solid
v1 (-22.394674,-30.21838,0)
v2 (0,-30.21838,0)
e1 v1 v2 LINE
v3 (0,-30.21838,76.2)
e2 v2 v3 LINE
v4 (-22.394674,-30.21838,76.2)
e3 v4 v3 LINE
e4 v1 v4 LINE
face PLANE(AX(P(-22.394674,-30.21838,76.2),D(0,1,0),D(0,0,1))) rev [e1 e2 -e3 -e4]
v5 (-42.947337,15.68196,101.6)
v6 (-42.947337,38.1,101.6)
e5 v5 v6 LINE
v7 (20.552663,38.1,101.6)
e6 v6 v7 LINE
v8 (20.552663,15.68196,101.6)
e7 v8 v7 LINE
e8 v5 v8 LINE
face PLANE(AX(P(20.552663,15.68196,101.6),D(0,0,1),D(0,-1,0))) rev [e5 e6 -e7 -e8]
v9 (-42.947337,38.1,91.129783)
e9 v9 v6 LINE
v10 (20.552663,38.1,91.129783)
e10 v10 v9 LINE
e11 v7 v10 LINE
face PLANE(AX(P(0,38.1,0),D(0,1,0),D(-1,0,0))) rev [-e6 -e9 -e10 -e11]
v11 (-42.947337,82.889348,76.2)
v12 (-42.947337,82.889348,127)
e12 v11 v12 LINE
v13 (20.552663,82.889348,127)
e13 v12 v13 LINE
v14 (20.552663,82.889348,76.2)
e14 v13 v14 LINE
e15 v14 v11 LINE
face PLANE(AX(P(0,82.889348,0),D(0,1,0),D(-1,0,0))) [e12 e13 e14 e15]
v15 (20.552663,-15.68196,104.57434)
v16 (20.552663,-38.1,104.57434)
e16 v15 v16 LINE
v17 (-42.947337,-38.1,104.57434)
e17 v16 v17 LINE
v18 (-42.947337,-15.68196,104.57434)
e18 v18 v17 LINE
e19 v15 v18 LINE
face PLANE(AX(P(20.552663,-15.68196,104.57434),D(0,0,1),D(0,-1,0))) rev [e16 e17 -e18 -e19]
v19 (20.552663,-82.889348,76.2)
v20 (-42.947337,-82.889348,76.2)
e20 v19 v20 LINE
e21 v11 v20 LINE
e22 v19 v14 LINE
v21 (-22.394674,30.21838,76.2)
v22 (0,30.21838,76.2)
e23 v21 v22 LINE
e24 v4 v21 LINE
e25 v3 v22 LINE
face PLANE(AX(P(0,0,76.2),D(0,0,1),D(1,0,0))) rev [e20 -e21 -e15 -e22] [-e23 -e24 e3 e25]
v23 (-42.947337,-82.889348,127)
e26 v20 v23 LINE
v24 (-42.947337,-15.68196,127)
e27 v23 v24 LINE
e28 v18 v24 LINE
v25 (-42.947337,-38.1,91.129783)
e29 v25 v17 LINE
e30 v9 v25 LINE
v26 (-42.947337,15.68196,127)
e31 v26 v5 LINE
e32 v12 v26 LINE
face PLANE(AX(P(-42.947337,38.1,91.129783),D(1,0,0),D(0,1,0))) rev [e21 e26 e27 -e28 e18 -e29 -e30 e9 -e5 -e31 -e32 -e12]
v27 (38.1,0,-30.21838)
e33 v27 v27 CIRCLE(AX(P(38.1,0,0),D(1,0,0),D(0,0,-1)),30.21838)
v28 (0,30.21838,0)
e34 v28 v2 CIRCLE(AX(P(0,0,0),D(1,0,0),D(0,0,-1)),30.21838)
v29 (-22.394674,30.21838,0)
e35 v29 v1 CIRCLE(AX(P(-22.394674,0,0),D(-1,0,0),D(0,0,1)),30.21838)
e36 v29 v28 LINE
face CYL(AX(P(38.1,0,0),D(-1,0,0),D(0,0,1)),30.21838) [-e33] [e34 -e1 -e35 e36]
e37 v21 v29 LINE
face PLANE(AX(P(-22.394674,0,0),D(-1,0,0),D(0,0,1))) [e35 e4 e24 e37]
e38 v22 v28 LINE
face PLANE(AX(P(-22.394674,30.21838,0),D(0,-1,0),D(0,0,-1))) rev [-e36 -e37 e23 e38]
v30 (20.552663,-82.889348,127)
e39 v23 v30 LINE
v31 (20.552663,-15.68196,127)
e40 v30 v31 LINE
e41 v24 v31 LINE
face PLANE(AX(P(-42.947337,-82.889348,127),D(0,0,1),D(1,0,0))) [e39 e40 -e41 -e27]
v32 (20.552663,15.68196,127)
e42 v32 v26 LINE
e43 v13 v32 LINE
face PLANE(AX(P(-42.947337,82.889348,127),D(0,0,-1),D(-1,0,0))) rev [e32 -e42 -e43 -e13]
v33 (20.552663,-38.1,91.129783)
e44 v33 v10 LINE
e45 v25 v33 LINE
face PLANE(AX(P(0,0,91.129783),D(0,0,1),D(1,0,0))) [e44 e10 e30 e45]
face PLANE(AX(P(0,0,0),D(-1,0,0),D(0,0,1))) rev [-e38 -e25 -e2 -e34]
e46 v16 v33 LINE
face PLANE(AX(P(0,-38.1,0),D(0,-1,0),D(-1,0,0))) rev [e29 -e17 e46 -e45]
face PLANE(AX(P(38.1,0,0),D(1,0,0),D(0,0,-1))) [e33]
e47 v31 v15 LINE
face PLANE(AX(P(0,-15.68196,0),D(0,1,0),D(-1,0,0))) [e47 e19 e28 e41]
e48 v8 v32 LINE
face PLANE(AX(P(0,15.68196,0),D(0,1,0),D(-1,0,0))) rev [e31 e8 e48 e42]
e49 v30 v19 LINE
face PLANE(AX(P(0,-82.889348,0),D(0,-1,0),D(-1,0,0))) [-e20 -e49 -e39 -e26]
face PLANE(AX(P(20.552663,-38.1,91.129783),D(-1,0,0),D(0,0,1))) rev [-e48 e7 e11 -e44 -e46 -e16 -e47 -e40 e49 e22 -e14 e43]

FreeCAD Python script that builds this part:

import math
import FreeCAD as App
import Part
import Sketcher

V = App.Vector
Q = App.Units.Quantity

doc = App.newDocument("Part")
params = doc.addObject("Spreadsheet::Sheet", "Params")
for row, (alias, value) in enumerate([
    ("pad1_length", "1.5 in"),
    ("sketch2_height", "3 in"),
    ("pad2_length", "22.394674 mm"),
    ("sketch3_height", "3 in"),
    ("sketch3_width", "2.5 in"),
    ("pad3_length", "14.929783 mm"),
    ("sketch4_height", "2 in"),
    ("sketch4_width", "2.5 in"),
    ("pad4_length", "44.789348 mm"),
    ("sketch5_height", "1 in"),
    ("sketch5_width", "2.5 in"),
    ("pad5_length", "0.8826 in"),
    ("sketch6_width", "2.5 in"),
    ("pad6_length", "0.8826 in"),
], start=1):
    params.set(f"A{row}", alias)
    params.set(f"B{row}", "=" + value)
    params.setAlias(f"B{row}", alias)

body = doc.addObject("PartDesign::Body", "Body")

# Sketch on YZ plane
sketch1 = body.newObject("Sketcher::SketchObject", "Sketch")
sketch1.AttachmentSupport = (doc.getObject("YZ_Plane"), [""])
sketch1.MapMode = "FlatFace"
sketch1.addGeometry(Part.Circle(V(0, 0, 0), V(0, 0, 1), 30.21838), False)
sketch1.addConstraint([
    Sketcher.Constraint("Coincident", 0, 3, -1, 1),
    Sketcher.Constraint("Diameter", 0, Q("2.3794 in")),
])
pad1 = body.newObject("PartDesign::Pad", "Pad")
pad1.Profile = sketch1
pad1.setExpression("Length", "Params.pad1_length")

# Sketch on YZ plane
sketch2 = body.newObject("Sketcher::SketchObject", "Sketch001")
sketch2.AttachmentSupport = (doc.getObject("YZ_Plane"), [""])
sketch2.MapMode = "FlatFace"
sketch2.AttachmentOffset = App.Placement(V(0, 0, -22.394674), App.Rotation())
sketch2.addGeometry([
    Part.LineSegment(V(30.21838, 76.2, 0), V(30.21838, 0, 0)),
    Part.ArcOfCircle(Part.Circle(V(0, 0, 0), V(0, 0, 1), 30.21838), math.radians(180), math.radians(360)),
    Part.LineSegment(V(-30.21838, 0, 0), V(-30.21838, 76.2, 0)),
    Part.LineSegment(V(-30.21838, 76.2, 0), V(30.21838, 76.2, 0)),
], False)
sketch2.addConstraint([
    Sketcher.Constraint("Tangent", 0, 2, 1, 2),
    Sketcher.Constraint("Tangent", 1, 1, 2, 1),
    Sketcher.Constraint("Coincident", 2, 2, 3, 1),
    Sketcher.Constraint("Coincident", 3, 2, 0, 1),
    Sketcher.Constraint("Vertical", 0),
    Sketcher.Constraint("Vertical", 2),
    Sketcher.Constraint("Horizontal", 3),
    Sketcher.Constraint("Coincident", 1, 3, -1, 1),
    Sketcher.Constraint("DistanceY", 0, 2, 0, 1, Q("3 in")),
    Sketcher.Constraint("Radius", 1, Q("1.1897 in")),
])
sketch2.setExpression("Constraints[8]", "Params.sketch2_height")
pad2 = body.newObject("PartDesign::Pad", "Pad001")
pad2.Profile = sketch2
pad2.setExpression("Length", "Params.pad2_length")

# Sketch on XY plane
sketch3 = body.newObject("Sketcher::SketchObject", "Sketch002")
sketch3.AttachmentSupport = (doc.getObject("XY_Plane"), [""])
sketch3.MapMode = "FlatFace"
sketch3.AttachmentOffset = App.Placement(V(0, 0, 3 * 25.4), App.Rotation())
sketch3.addGeometry([
    Part.LineSegment(V(-42.947337, 38.1, 0), V(-42.947337, -38.1, 0)),
    Part.LineSegment(V(-42.947337, -38.1, 0), V(20.552663, -38.1, 0)),
    Part.LineSegment(V(20.552663, -38.1, 0), V(20.552663, 38.1, 0)),
    Part.LineSegment(V(20.552663, 38.1, 0), V(-42.947337, 38.1, 0)),
], False)
sketch3.addConstraint([
    Sketcher.Constraint("Coincident", 0, 2, 1, 1),
    Sketcher.Constraint("Coincident", 1, 2, 2, 1),
    Sketcher.Constraint("Coincident", 2, 2, 3, 1),
    Sketcher.Constraint("Coincident", 3, 2, 0, 1),
    Sketcher.Constraint("Vertical", 0),
    Sketcher.Constraint("Horizontal", 1),
    Sketcher.Constraint("Vertical", 2),
    Sketcher.Constraint("Horizontal", 3),
    Sketcher.Constraint("DistanceY", 0, 2, 0, 1, Q("3 in")),
    Sketcher.Constraint("DistanceX", 1, 1, 1, 2, Q("2.5 in")),
    Sketcher.Constraint("DistanceY", 0, 2, -1, 1, Q("1.5 in")),
    Sketcher.Constraint("DistanceX", 0, 2, -1, 1, Q("42.947337 mm")),
])
sketch3.setExpression("Constraints[8]", "Params.sketch3_height")
sketch3.setExpression("Constraints[9]", "Params.sketch3_width")
pad3 = body.newObject("PartDesign::Pad", "Pad002")
pad3.Profile = sketch3
pad3.setExpression("Length", "Params.pad3_length")

# Sketch on XZ plane
sketch4 = body.newObject("Sketcher::SketchObject", "Sketch003")
sketch4.AttachmentSupport = (doc.getObject("XZ_Plane"), [""])
sketch4.MapMode = "FlatFace"
sketch4.AttachmentOffset = App.Placement(V(0, 0, -1.5 * 25.4), App.Rotation())
sketch4.addGeometry([
    Part.LineSegment(V(20.552663, 127, 0), V(20.552663, 76.2, 0)),
    Part.LineSegment(V(20.552663, 76.2, 0), V(-42.947337, 76.2, 0)),
    Part.LineSegment(V(-42.947337, 76.2, 0), V(-42.947337, 127, 0)),
    Part.LineSegment(V(-42.947337, 127, 0), V(20.552663, 127, 0)),
], False)
sketch4.addConstraint([
    Sketcher.Constraint("Coincident", 0, 2, 1, 1),
    Sketcher.Constraint("Coincident", 1, 2, 2, 1),
    Sketcher.Constraint("Coincident", 2, 2, 3, 1),
    Sketcher.Constraint("Coincident", 3, 2, 0, 1),
    Sketcher.Constraint("Vertical", 0),
    Sketcher.Constraint("Horizontal", 1),
    Sketcher.Constraint("Vertical", 2),
    Sketcher.Constraint("Horizontal", 3),
    Sketcher.Constraint("DistanceY", 0, 2, 0, 1, Q("2 in")),
    Sketcher.Constraint("DistanceX", 1, 2, 1, 1, Q("2.5 in")),
    Sketcher.Constraint("DistanceY", -1, 1, 0, 2, Q("3 in")),
    Sketcher.Constraint("DistanceX", -1, 1, 0, 2, Q("20.552663 mm")),
])
sketch4.setExpression("Constraints[8]", "Params.sketch4_height")
sketch4.setExpression("Constraints[9]", "Params.sketch4_width")
pad4 = body.newObject("PartDesign::Pad", "Pad003")
pad4.Profile = sketch4
pad4.setExpression("Length", "Params.pad4_length")
pad4.Reversed = True
doc.recompute()

mirrored = body.newObject("PartDesign::Mirrored", "Mirrored")
mirrored.Originals = [pad4]
mirrored.MirrorPlane = (doc.getObject("XZ_Plane"), [""])
body.Tip = mirrored

# Sketch on XZ plane
sketch5 = body.newObject("Sketcher::SketchObject", "Sketch004")
sketch5.AttachmentSupport = (doc.getObject("XZ_Plane"), [""])
sketch5.MapMode = "FlatFace"
sketch5.AttachmentOffset = App.Placement(V(0, 0, -1.5 * 25.4), App.Rotation())
sketch5.addGeometry([
    Part.LineSegment(V(-42.947337, 127, 0), V(-42.947337, 101.6, 0)),
    Part.LineSegment(V(-42.947337, 101.6, 0), V(20.552663, 101.6, 0)),
    Part.LineSegment(V(20.552663, 101.6, 0), V(20.552663, 127, 0)),
    Part.LineSegment(V(20.552663, 127, 0), V(-42.947337, 127, 0)),
], False)
sketch5.addConstraint([
    Sketcher.Constraint("Coincident", 0, 2, 1, 1),
    Sketcher.Constraint("Coincident", 1, 2, 2, 1),
    Sketcher.Constraint("Coincident", 2, 2, 3, 1),
    Sketcher.Constraint("Coincident", 3, 2, 0, 1),
    Sketcher.Constraint("Vertical", 0),
    Sketcher.Constraint("Horizontal", 1),
    Sketcher.Constraint("Vertical", 2),
    Sketcher.Constraint("Horizontal", 3),
    Sketcher.Constraint("DistanceY", 0, 2, 0, 1, Q("1 in")),
    Sketcher.Constraint("DistanceX", 1, 1, 1, 2, Q("2.5 in")),
    Sketcher.Constraint("DistanceY", -1, 1, 0, 2, Q("4 in")),
    Sketcher.Constraint("DistanceX", 0, 2, -1, 1, Q("42.947337 mm")),
])
sketch5.setExpression("Constraints[8]", "Params.sketch5_height")
sketch5.setExpression("Constraints[9]", "Params.sketch5_width")
pad5 = body.newObject("PartDesign::Pad", "Pad004")
pad5.Profile = sketch5
pad5.setExpression("Length", "Params.pad5_length")

# Sketch on XZ plane
sketch6 = body.newObject("Sketcher::SketchObject", "Sketch005")
sketch6.AttachmentSupport = (doc.getObject("XZ_Plane"), [""])
sketch6.MapMode = "FlatFace"
sketch6.AttachmentOffset = App.Placement(V(0, 0, 1.5 * 25.4), App.Rotation())
sketch6.addGeometry([
    Part.LineSegment(V(20.552663, 127, 0), V(20.552663, 104.57434, 0)),
    Part.LineSegment(V(20.552663, 104.57434, 0), V(-42.947337, 104.57434, 0)),
    Part.LineSegment(V(-42.947337, 104.57434, 0), V(-42.947337, 127, 0)),
    Part.LineSegment(V(-42.947337, 127, 0), V(20.552663, 127, 0)),
], False)
sketch6.addConstraint([
    Sketcher.Constraint("Coincident", 0, 2, 1, 1),
    Sketcher.Constraint("Coincident", 1, 2, 2, 1),
    Sketcher.Constraint("Coincident", 2, 2, 3, 1),
    Sketcher.Constraint("Coincident", 3, 2, 0, 1),
    Sketcher.Constraint("Vertical", 0),
    Sketcher.Constraint("Horizontal", 1),
    Sketcher.Constraint("Vertical", 2),
    Sketcher.Constraint("Horizontal", 3),
    Sketcher.Constraint("DistanceX", 1, 2, 1, 1, Q("2.5 in")),
    Sketcher.Constraint("DistanceY", -1, 1, 2, 2, Q("5 in")),
    Sketcher.Constraint("DistanceY", 0, 2, 0, 1, Q("0.8829 in")),
    Sketcher.Constraint("DistanceX", -1, 1, 0, 2, Q("20.552663 mm")),
])
sketch6.setExpression("Constraints[8]", "Params.sketch6_width")
pad6 = body.newObject("PartDesign::Pad", "Pad005")
pad6.Profile = sketch6
pad6.setExpression("Length", "Params.pad6_length")
pad6.Reversed = True

doc.recompute()
